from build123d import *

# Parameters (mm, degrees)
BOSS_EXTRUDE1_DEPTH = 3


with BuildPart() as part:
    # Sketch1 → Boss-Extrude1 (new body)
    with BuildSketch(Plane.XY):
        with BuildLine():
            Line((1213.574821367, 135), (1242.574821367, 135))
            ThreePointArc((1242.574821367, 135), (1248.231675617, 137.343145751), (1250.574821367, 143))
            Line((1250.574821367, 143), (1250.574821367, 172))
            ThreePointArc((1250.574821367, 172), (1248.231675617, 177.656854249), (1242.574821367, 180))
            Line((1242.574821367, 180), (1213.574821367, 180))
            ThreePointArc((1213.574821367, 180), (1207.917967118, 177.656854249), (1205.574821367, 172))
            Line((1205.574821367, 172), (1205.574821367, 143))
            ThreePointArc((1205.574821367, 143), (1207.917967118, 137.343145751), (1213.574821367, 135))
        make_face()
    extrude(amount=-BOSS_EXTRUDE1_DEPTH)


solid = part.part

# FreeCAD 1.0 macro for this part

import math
import FreeCAD as App
import Part
import Sketcher
from FreeCAD import Vector

doc = App.newDocument("Part")
body = doc.addObject("PartDesign::Body", "Body")

sketch1 = doc.addObject("Sketcher::SketchObject", "Sketch")
body.addObject(sketch1)
sketch1.AttachmentSupport = (doc.XY_Plane, [""])
sketch1.MapMode = "FlatFace"
sketch1.addGeometry([
    Part.LineSegment(Vector(1214, 135, 0), Vector(1243, 135, 0)),
    Part.ArcOfCircle(Part.Circle(Vector(1243, 143, 0), Vector(0, 0, 1), 8), math.radians(-90), math.radians(0)),
    Part.LineSegment(Vector(1251, 143, 0), Vector(1251, 172, 0)),
    Part.ArcOfCircle(Part.Circle(Vector(1243, 172, 0), Vector(0, 0, 1), 8), math.radians(0), math.radians(90)),
    Part.LineSegment(Vector(1243, 180, 0), Vector(1214, 180, 0)),
    Part.ArcOfCircle(Part.Circle(Vector(1214, 172, 0), Vector(0, 0, 1), 8), math.radians(90), math.radians(180)),
    Part.LineSegment(Vector(1206, 172, 0), Vector(1206, 143, 0)),
    Part.ArcOfCircle(Part.Circle(Vector(1214, 143, 0), Vector(0, 0, 1), 8), math.radians(-180), math.radians(-90)),
], False)
sketch1.addConstraint([
    Sketcher.Constraint("Tangent", 0, 2, 1, 1),
    Sketcher.Constraint("Tangent", 1, 2, 2, 1),
    Sketcher.Constraint("Tangent", 2, 2, 3, 1),
    Sketcher.Constraint("Tangent", 3, 2, 4, 1),
    Sketcher.Constraint("Tangent", 4, 2, 5, 1),
    Sketcher.Constraint("Tangent", 5, 2, 6, 1),
    Sketcher.Constraint("Tangent", 6, 2, 7, 1),
    Sketcher.Constraint("Tangent", 7, 2, 0, 1),
    Sketcher.Constraint("Horizontal", 0),
    Sketcher.Constraint("Vertical", 2),
    Sketcher.Constraint("Horizontal", 4),
    Sketcher.Constraint("Vertical", 6),
    Sketcher.Constraint("Equal", 1, 3),
    Sketcher.Constraint("Equal", 3, 5),
    Sketcher.Constraint("Equal", 5, 7),
    Sketcher.Constraint("Equal", 4, 2),
    Sketcher.Constraint("Radius", 1, 8.0),
    Sketcher.Constraint("DistanceX", 0, 1, 0, 2, 29.0),
    Sketcher.Constraint("DistanceY", -1, 1, 1, 3, 143.0),
    Sketcher.Constraint("DistanceX", -1, 1, 1, 3, 1242.574821),
])
pad1 = doc.addObject("PartDesign::Pad", "Pad")
body.addObject(pad1)
pad1.Profile = sketch1
pad1.Length = 3
pad1.Reversed = True

doc.recompute()
